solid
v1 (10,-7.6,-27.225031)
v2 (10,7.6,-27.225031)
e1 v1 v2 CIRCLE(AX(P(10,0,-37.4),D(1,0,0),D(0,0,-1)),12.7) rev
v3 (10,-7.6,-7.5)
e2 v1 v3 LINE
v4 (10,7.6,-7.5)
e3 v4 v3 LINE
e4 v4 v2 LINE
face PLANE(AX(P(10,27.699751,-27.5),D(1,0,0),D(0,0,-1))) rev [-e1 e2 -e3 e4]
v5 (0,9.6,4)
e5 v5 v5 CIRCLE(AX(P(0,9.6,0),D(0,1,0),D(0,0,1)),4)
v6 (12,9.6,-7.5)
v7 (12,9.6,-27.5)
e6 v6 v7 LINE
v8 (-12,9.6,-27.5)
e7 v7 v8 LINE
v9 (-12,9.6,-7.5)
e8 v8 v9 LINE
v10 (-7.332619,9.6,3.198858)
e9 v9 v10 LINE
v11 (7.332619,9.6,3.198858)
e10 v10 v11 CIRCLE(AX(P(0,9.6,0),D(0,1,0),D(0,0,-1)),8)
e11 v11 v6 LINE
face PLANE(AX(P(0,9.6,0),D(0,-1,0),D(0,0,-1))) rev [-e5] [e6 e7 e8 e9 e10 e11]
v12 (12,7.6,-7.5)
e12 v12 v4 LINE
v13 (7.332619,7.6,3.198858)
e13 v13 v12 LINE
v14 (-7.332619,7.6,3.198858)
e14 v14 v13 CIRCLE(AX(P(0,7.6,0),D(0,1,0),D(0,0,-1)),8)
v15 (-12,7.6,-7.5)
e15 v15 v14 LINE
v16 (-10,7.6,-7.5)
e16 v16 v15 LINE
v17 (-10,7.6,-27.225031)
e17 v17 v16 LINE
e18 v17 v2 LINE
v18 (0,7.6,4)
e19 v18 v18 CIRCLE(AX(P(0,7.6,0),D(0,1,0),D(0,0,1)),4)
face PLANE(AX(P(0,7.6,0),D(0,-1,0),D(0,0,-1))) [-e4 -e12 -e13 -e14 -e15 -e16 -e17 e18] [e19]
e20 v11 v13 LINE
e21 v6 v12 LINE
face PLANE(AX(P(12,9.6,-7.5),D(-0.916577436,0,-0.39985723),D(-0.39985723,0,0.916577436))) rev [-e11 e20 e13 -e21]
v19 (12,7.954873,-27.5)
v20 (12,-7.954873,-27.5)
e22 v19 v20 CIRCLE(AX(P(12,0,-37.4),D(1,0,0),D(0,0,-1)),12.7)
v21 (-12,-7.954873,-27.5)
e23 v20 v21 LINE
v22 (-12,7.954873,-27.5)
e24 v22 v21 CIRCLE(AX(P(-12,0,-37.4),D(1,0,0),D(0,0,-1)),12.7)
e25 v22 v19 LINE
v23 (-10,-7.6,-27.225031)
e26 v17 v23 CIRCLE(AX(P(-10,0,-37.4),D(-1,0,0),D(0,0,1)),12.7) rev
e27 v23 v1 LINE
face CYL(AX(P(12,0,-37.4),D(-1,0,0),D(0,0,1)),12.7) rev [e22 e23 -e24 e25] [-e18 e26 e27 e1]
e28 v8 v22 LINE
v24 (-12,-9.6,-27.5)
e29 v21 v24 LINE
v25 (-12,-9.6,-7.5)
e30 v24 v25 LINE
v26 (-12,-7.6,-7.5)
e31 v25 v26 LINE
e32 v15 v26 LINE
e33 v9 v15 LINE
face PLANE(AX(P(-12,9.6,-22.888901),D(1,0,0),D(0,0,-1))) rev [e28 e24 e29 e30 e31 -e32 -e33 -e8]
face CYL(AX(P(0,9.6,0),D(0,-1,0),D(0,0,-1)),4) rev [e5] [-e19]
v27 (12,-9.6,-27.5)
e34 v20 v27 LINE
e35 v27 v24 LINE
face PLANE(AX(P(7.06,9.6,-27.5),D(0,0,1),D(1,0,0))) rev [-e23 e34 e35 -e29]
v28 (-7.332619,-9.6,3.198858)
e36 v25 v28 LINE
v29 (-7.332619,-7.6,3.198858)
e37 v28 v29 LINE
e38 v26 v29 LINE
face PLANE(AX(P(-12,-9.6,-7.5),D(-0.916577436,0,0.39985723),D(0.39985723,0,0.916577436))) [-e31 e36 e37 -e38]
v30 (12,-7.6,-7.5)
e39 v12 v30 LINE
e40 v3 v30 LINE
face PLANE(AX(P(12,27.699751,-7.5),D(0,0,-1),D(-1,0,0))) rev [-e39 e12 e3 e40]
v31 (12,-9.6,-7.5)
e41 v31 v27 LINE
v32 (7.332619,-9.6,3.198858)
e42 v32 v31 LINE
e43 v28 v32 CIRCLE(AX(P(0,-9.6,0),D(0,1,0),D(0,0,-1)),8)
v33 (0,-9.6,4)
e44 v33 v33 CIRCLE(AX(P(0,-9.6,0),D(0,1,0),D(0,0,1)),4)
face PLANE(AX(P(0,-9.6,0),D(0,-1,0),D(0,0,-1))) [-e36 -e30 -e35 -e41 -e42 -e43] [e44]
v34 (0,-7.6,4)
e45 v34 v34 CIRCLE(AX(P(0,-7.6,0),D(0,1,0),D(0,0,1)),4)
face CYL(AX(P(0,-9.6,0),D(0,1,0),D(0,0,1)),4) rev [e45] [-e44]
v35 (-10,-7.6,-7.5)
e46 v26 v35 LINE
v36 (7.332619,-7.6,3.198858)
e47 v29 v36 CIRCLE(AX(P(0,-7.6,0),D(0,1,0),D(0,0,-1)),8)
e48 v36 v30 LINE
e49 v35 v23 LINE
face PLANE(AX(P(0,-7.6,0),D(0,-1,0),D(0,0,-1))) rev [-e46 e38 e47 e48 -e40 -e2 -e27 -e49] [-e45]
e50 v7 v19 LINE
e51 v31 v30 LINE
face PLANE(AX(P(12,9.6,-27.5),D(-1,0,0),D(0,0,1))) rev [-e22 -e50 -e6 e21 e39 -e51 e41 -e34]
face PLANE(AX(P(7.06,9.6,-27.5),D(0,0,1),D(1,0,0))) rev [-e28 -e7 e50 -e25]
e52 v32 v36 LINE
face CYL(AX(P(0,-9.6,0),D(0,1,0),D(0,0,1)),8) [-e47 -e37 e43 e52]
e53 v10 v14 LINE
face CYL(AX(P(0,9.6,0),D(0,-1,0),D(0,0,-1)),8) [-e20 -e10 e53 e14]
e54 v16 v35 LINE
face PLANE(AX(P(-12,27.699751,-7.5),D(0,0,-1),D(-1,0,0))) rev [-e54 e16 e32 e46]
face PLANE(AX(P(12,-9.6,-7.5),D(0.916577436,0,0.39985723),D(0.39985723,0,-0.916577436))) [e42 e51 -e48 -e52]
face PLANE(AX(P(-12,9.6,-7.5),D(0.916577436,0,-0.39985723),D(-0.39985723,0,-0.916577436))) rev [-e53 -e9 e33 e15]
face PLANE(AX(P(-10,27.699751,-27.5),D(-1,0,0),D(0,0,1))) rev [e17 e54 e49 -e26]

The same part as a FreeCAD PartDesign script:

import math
import FreeCAD as App
import Part
import Sketcher
from FreeCAD import Vector
Q = App.Units.Quantity

doc = App.newDocument("Part")
body = doc.addObject("PartDesign::Body", "Body")

# Sketch on XZ plane
sketch1 = body.newObject("Sketcher::SketchObject", "Sketch")
sketch1.AttachmentSupport = (doc.getObject("XZ_Plane"), [""])
sketch1.MapMode = "FlatFace"
sketch1.AttachmentOffset = App.Placement(Vector(0, 0, -7.6), App.Rotation())
sketch1.addGeometry([
    Part.LineSegment(Vector(12, -7.5, 0), Vector(12, -27.5, 0)),  # 0
    Part.LineSegment(Vector(12, -27.5, 0), Vector(-12, -27.5, 0)),  # 1
    Part.LineSegment(Vector(-12, -27.5, 0), Vector(-12, -7.5, 0)),  # 2
    Part.LineSegment(Vector(-12, -7.5, 0), Vector(-7.332619, 3.198858, 0)),  # 3
    Part.ArcOfCircle(Part.Circle(Vector(0, 0, 0), Vector(0, 0, 1), 8), math.radians(23.569254), math.radians(156.430746)),  # 4
    Part.LineSegment(Vector(7.332619, 3.198858, 0), Vector(12, -7.5, 0)),  # 5
    Part.Circle(Vector(0, 0, 0), Vector(0, 0, 1), 4),  # 6
], False)
sketch1.addConstraint([
    Sketcher.Constraint("Coincident", 0, 2, 1, 1),
    Sketcher.Constraint("Coincident", 1, 2, 2, 1),
    Sketcher.Constraint("Coincident", 2, 2, 3, 1),
    Sketcher.Constraint("Tangent", 3, 2, 4, 2),
    Sketcher.Constraint("Tangent", 4, 1, 5, 1),
    Sketcher.Constraint("Coincident", 5, 2, 0, 1),
    Sketcher.Constraint("Vertical", 0),
    Sketcher.Constraint("Horizontal", 1),
    Sketcher.Constraint("Vertical", 2),
    Sketcher.Constraint("Coincident", 4, 3, -1, 1),
    Sketcher.Constraint("Coincident", 6, 3, -1, 1),
    Sketcher.Constraint("Symmetric", 2, 2, 5, 2, -2),
    Sketcher.Constraint("Diameter", 6, Q("8 mm")),
    Sketcher.Constraint("Radius", 4, Q("8 mm")),
    Sketcher.Constraint("DistanceX", 1, 2, 1, 1, Q("24 mm")),
    Sketcher.Constraint("DistanceY", 0, 2, 0, 1, Q("20 mm")),
    Sketcher.Constraint("DistanceY", 0, 2, -1, 1, Q("27.5 mm")),
])
pad1 = body.newObject("PartDesign::Pad", "Pad")
pad1.Profile = sketch1
pad1.Length = 2
pad1.Reversed = True
body2 = doc.addObject("PartDesign::Body", "Body001")

# Sketch on XZ plane
sketch2 = body2.newObject("Sketcher::SketchObject", "Sketch001")
sketch2.AttachmentSupport = (doc.getObject("XZ_Plane001"), [""])
sketch2.MapMode = "FlatFace"
sketch2.AttachmentOffset = App.Placement(Vector(0, 0, 7.6), App.Rotation())
sketch2.addGeometry([
    Part.LineSegment(Vector(12, -7.5, 0), Vector(12, -27.5, 0)),  # 0
    Part.LineSegment(Vector(12, -27.5, 0), Vector(-12, -27.5, 0)),  # 1
    Part.LineSegment(Vector(-12, -27.5, 0), Vector(-12, -7.5, 0)),  # 2
    Part.LineSegment(Vector(-12, -7.5, 0), Vector(-7.332619, 3.198858, 0)),  # 3
    Part.ArcOfCircle(Part.Circle(Vector(0, 0, 0), Vector(0, 0, 1), 8), math.radians(23.569254), math.radians(156.430746)),  # 4
    Part.LineSegment(Vector(7.332619, 3.198858, 0), Vector(12, -7.5, 0)),  # 5
    Part.Circle(Vector(0, 0, 0), Vector(0, 0, 1), 4),  # 6
], False)
sketch2.addConstraint([
    Sketcher.Constraint("Coincident", 0, 2, 1, 1),
    Sketcher.Constraint("Coincident", 1, 2, 2, 1),
    Sketcher.Constraint("Coincident", 2, 2, 3, 1),
    Sketcher.Constraint("Tangent", 3, 2, 4, 2),
    Sketcher.Constraint("Tangent", 4, 1, 5, 1),
    Sketcher.Constraint("Coincident", 5, 2, 0, 1),
    Sketcher.Constraint("Vertical", 0),
    Sketcher.Constraint("Horizontal", 1),
    Sketcher.Constraint("Vertical", 2),
    Sketcher.Constraint("Coincident", 4, 3, -1, 1),
    Sketcher.Constraint("Coincident", 6, 3, -1, 1),
    Sketcher.Constraint("Symmetric", 2, 2, 5, 2, -2),
    Sketcher.Constraint("Diameter", 6, Q("8 mm")),
    Sketcher.Constraint("Radius", 4, Q("8 mm")),
    Sketcher.Constraint("DistanceX", 1, 2, 1, 1, Q("24 mm")),
    Sketcher.Constraint("DistanceY", 0, 2, 0, 1, Q("20 mm")),
    Sketcher.Constraint("DistanceY", 0, 2, -1, 1, Q("27.5 mm")),
])
pad2 = body2.newObject("PartDesign::Pad", "Pad001")
pad2.Profile = sketch2
pad2.Length = 2
body.AllowCompound = True
doc.recompute()

boolean = body.newObject("PartDesign::Boolean", "Boolean")
boolean.Type = "Fuse"
boolean.addObjects([body2])

# Sketch on XZ plane
sketch3 = body.newObject("Sketcher::SketchObject", "Sketch002")
sketch3.AttachmentSupport = (doc.getObject("XZ_Plane"), [""])
sketch3.MapMode = "FlatFace"
sketch3.AttachmentOffset = App.Placement(Vector(0, 0, 7.6), App.Rotation())
sketch3.addGeometry([
    Part.LineSegment(Vector(-12, -27.5, 0), Vector(-12, -7.5, 0)),  # 0
    Part.LineSegment(Vector(-12, -7.5, 0), Vector(-10, -7.5, 0)),  # 1
    Part.LineSegment(Vector(-10, -7.5, 0), Vector(-10, -27.5, 0)),  # 2
    Part.LineSegment(Vector(-10, -27.5, 0), Vector(-12, -27.5, 0)),  # 3
    Part.LineSegment(Vector(10, -27.5, 0), Vector(10, -7.5, 0)),  # 4
    Part.LineSegment(Vector(10, -7.5, 0), Vector(12, -7.5, 0)),  # 5
    Part.LineSegment(Vector(12, -7.5, 0), Vector(12, -27.5, 0)),  # 6
    Part.LineSegment(Vector(12, -27.5, 0), Vector(10, -27.5, 0)),  # 7
], False)
sketch3.addConstraint([
    Sketcher.Constraint("Coincident", 0, 2, 1, 1),
    Sketcher.Constraint("Coincident", 1, 2, 2, 1),
    Sketcher.Constraint("Coincident", 2, 2, 3, 1),
    Sketcher.Constraint("Coincident", 3, 2, 0, 1),
    Sketcher.Constraint("Coincident", 4, 2, 5, 1),
    Sketcher.Constraint("Coincident", 5, 2, 6, 1),
    Sketcher.Constraint("Coincident", 6, 2, 7, 1),
    Sketcher.Constraint("Coincident", 7, 2, 4, 1),
    Sketcher.Constraint("Vertical", 0),
    Sketcher.Constraint("Horizontal", 1),
    Sketcher.Constraint("Vertical", 2),
    Sketcher.Constraint("Horizontal", 3),
    Sketcher.Constraint("Vertical", 4),
    Sketcher.Constraint("Horizontal", 5),
    Sketcher.Constraint("Vertical", 6),
    Sketcher.Constraint("Horizontal", 7),
    Sketcher.Constraint("Symmetric", 1, 2, 4, 2, -2),
    Sketcher.Constraint("Symmetric", 3, 2, 6, 2, -2),
    Sketcher.Constraint("DistanceX", 1, 1, 1, 2, Q("2 mm")),
    Sketcher.Constraint("DistanceY", 0, 1, 0, 2, Q("20 mm")),
    Sketcher.Constraint("DistanceX", 0, 2, -1, 1, Q("12 mm")),
    Sketcher.Constraint("DistanceY", 0, 2, -1, 1, Q("7.5 mm")),
])
pad3 = body.newObject("PartDesign::Pad", "Pad002")
pad3.Profile = sketch3
pad3.Length = 15.2
pad3.Reversed = True

# Sketch on YZ plane
sketch4 = body.newObject("Sketcher::SketchObject", "Sketch003")
sketch4.AttachmentSupport = (doc.getObject("YZ_Plane"), [""])
sketch4.MapMode = "FlatFace"
sketch4.addGeometry(Part.Circle(Vector(0, -37.4, 0), Vector(0, 0, 1), 12.7), False)
sketch4.addConstraint([
    Sketcher.Constraint("PointOnObject", 0, 3, -2),
    Sketcher.Constraint("Diameter", 0, Q("25.4 mm")),
    Sketcher.Constraint("DistanceY", 0, 3, -1, 1, Q("37.4 mm")),
])
pocket1 = body.newObject("PartDesign::Pocket", "Pocket")
pocket1.Profile = sketch4
pocket1.Type = "ThroughAll"
pocket1.Midplane = True

doc.recompute()
